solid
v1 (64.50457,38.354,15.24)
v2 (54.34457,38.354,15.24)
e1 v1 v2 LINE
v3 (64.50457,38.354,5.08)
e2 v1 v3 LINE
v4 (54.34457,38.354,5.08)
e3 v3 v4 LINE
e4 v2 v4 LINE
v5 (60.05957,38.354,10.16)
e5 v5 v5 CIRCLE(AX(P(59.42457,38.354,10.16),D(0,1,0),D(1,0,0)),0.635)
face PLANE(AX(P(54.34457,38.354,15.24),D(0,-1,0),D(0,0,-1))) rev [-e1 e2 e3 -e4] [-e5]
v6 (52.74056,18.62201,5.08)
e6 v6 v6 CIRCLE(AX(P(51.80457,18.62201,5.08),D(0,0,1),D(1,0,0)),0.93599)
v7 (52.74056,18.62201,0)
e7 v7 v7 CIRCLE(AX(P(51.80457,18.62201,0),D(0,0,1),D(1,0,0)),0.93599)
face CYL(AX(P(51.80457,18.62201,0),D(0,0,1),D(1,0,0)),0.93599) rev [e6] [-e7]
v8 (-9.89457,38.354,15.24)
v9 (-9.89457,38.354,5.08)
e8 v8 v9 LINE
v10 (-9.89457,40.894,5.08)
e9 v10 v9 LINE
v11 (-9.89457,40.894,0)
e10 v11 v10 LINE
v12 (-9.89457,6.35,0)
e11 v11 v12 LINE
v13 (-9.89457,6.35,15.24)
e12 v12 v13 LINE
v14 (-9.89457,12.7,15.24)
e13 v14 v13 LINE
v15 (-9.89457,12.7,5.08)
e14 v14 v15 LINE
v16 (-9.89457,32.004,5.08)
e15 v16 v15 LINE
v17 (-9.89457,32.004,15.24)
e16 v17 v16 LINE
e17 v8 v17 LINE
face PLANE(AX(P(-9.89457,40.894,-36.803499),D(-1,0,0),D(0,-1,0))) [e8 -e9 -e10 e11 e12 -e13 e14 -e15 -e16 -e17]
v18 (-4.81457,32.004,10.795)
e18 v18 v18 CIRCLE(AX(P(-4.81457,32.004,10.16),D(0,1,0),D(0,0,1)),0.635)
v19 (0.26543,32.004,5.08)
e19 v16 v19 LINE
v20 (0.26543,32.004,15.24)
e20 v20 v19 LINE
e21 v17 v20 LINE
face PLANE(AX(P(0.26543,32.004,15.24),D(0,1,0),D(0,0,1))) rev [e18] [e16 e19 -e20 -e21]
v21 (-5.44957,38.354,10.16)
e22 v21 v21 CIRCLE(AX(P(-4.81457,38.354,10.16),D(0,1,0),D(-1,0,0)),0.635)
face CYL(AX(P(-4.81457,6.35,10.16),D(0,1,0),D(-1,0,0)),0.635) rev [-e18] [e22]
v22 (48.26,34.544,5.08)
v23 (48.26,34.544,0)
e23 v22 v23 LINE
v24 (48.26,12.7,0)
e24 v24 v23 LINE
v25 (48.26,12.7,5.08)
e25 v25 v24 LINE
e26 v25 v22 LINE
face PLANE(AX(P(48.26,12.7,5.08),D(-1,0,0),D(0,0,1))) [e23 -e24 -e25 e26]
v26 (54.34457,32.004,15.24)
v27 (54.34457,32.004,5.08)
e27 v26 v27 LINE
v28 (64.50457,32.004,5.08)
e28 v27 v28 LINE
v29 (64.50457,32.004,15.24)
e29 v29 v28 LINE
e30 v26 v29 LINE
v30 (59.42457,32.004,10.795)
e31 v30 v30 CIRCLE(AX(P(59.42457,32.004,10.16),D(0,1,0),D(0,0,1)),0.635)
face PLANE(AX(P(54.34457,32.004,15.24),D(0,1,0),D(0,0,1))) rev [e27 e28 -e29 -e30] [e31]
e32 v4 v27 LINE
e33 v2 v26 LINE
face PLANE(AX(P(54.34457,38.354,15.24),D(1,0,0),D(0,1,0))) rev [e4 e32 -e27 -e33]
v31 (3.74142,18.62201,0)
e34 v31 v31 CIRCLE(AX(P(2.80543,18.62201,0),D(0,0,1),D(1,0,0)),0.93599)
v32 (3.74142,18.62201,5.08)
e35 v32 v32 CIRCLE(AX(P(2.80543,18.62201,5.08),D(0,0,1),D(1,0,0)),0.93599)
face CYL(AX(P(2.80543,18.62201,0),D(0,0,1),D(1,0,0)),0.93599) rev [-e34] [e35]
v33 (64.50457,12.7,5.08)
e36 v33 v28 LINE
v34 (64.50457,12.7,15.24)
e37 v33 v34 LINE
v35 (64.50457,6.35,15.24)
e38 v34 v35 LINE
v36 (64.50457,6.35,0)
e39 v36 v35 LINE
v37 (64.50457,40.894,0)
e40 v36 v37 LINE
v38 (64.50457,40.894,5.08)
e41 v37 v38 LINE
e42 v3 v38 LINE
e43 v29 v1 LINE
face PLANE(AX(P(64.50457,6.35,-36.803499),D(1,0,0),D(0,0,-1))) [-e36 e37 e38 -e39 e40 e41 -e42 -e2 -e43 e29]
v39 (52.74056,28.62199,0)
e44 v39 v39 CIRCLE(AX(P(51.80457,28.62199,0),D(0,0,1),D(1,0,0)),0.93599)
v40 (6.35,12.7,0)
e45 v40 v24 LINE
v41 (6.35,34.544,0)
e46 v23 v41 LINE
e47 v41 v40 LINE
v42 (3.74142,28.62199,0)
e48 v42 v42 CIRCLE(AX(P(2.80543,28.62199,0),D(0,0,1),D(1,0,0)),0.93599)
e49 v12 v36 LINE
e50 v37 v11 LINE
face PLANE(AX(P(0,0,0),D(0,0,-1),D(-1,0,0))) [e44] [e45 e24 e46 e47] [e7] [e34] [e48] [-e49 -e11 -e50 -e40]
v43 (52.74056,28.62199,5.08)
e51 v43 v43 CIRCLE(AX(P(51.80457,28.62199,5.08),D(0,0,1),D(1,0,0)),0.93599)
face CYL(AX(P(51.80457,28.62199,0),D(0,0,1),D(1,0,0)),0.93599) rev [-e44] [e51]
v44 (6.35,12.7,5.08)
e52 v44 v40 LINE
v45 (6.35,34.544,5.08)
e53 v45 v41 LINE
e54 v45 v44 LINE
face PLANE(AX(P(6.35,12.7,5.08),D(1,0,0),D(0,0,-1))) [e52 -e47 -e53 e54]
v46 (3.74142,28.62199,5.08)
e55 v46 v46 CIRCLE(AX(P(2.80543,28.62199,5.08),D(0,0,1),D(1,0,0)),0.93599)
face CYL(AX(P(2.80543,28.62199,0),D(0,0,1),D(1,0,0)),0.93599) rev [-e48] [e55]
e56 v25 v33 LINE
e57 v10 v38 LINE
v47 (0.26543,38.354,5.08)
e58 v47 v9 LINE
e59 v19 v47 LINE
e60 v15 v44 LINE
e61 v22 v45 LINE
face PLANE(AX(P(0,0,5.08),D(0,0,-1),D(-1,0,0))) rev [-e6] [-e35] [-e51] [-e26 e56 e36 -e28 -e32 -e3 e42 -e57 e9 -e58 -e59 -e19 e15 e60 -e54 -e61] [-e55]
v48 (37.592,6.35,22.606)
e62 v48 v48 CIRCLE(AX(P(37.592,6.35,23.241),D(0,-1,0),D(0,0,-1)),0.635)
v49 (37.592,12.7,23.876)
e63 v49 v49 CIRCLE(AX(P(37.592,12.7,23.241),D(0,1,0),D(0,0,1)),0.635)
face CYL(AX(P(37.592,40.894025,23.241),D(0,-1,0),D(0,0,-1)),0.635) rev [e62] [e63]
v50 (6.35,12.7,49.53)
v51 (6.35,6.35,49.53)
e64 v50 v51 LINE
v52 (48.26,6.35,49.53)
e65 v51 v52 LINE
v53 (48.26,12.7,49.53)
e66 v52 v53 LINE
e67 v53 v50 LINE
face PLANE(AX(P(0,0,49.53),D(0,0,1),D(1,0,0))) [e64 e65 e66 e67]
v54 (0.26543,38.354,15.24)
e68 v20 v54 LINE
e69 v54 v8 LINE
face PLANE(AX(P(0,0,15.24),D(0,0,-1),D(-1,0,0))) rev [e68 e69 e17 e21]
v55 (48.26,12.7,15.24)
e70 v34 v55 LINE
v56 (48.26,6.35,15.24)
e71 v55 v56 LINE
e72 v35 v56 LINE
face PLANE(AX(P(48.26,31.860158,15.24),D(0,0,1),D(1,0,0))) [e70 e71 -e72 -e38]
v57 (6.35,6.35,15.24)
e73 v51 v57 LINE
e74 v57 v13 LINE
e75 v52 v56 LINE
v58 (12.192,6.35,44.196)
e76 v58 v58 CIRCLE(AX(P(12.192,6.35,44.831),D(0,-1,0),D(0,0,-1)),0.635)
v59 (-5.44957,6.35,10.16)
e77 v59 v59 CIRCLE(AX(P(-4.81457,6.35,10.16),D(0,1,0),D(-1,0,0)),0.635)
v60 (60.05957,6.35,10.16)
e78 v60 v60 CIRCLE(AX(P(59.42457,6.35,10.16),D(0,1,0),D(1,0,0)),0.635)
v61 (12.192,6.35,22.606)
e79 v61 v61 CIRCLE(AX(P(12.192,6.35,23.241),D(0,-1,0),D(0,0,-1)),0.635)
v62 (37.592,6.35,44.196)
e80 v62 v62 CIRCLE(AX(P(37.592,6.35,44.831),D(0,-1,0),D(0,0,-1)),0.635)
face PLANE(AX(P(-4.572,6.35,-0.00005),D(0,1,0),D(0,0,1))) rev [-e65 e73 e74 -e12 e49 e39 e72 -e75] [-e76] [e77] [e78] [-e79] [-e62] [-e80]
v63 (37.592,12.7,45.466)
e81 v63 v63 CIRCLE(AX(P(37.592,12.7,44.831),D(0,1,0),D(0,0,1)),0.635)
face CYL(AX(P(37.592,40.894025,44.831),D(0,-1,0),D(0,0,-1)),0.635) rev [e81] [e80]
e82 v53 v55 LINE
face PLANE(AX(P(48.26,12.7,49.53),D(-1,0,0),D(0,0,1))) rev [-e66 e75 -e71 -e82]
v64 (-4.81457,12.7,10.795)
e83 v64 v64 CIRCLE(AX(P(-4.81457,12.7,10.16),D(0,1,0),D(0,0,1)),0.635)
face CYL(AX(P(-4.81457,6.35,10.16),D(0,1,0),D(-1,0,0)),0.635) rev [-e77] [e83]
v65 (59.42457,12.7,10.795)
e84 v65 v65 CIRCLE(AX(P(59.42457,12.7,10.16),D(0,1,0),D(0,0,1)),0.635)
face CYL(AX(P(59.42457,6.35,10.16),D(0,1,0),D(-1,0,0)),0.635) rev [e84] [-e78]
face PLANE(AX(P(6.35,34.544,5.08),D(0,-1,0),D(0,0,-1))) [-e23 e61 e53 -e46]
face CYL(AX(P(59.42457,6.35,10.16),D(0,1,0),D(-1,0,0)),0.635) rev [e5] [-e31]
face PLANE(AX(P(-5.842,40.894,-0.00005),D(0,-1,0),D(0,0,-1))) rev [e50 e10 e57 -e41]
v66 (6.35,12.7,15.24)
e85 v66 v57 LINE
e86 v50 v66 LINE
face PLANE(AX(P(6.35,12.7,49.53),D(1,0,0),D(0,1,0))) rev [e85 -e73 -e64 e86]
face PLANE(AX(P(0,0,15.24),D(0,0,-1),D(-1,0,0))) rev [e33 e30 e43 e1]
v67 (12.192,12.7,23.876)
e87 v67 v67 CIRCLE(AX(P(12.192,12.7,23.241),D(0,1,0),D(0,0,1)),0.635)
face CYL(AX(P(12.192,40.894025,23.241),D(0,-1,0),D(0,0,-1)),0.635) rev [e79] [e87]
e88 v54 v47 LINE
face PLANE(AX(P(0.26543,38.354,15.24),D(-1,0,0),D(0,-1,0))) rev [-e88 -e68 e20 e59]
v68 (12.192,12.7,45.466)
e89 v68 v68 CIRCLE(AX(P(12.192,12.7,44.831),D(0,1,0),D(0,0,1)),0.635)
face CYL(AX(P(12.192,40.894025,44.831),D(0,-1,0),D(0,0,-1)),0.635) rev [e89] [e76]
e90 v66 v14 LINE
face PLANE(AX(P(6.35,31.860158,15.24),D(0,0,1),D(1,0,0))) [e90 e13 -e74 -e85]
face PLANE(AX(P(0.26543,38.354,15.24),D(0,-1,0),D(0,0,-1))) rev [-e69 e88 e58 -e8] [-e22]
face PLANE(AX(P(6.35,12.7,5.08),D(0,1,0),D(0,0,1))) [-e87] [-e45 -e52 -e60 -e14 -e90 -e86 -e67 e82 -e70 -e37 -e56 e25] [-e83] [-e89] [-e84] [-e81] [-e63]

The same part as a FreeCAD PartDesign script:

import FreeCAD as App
import Part
import Sketcher
from FreeCAD import Vector
Q = App.Units.Quantity


def edges_at(feature, points):
    """Names of the edges that pass closest to the given points."""
    edges = feature.Shape.Edges
    near = lambda p: min(range(len(edges)), key=lambda i: edges[i].distToShape(Part.Vertex(*p))[0])
    return sorted({f"Edge{near(p) + 1}" for p in points})


def add_polygon(sketch, points):
    """Adds a closed chain of lines whose ends are joined by coincident constraints."""
    first, n = sketch.GeometryCount, len(points)
    for a, b in zip(points, points[1:] + points[:1]):
        sketch.addGeometry(Part.LineSegment(App.Vector(*a, 0), App.Vector(*b, 0)), False)
    for i in range(n):
        sketch.addConstraint(Sketcher.Constraint("Coincident", first + i, 2, first + (i + 1) % n, 1))

doc = App.newDocument("Part")
body = doc.addObject("PartDesign::Body", "Body")

sketch1 = body.newObject("Sketcher::SketchObject", "Sketch")
sketch1.AttachmentSupport = (doc.getObject("XY_Plane"), [""])
sketch1.MapMode = "FlatFace"
add_polygon(sketch1, [(0, 47.244), (0, 0), (54.61, 0), (54.61, 47.244)])
add_polygon(sketch1, [(48.26, 12.7), (6.35, 12.7), (6.35, 34.544), (48.26, 34.544)])
sketch1.addConstraint([
    Sketcher.Constraint("Vertical", 0),
    Sketcher.Constraint("Horizontal", 1),
    Sketcher.Constraint("Vertical", 2),
    Sketcher.Constraint("Horizontal", 3),
    Sketcher.Constraint("Horizontal", 4),
    Sketcher.Constraint("Vertical", 5),
    Sketcher.Constraint("Horizontal", 6),
    Sketcher.Constraint("Vertical", 7),
    Sketcher.Constraint("Coincident", 0, 2, -1, 1),
    Sketcher.Constraint("DistanceX", 1, 1, 1, 2, Q("2.15 in")),
    Sketcher.Constraint("DistanceX", 4, 2, 4, 1, Q("1.65 in")),
    Sketcher.Constraint("DistanceY", 0, 2, 0, 1, Q("1.86 in")),
    Sketcher.Constraint("DistanceY", 5, 1, 5, 2, Q("0.86 in")),
    Sketcher.Constraint("DistanceY", -1, 1, 4, 2, Q("0.5 in")),
    Sketcher.Constraint("DistanceX", -1, 1, 6, 2, Q("1.9 in")),
])
pad1 = body.newObject("PartDesign::Pad", "Pad")
pad1.Profile = sketch1
pad1.Length = Q("0.2 in")

sketch2 = body.newObject("Sketcher::SketchObject", "Sketch001")
sketch2.AttachmentSupport = (doc.getObject("XY_Plane"), [""])
sketch2.MapMode = "FlatFace"
sketch2.AttachmentOffset = App.Placement(Vector(0, 0, 0.2 * 25.4), App.Rotation())
sketch2.addGeometry([
    Part.Circle(Vector(2.80543, 28.62199, 0), Vector(0, 0, 1), 0.93599),
    Part.Circle(Vector(2.80543, 18.62201, 0), Vector(0, 0, 1), 0.93599),
    Part.Circle(Vector(51.80457, 28.62199, 0), Vector(0, 0, 1), 0.93599),
    Part.Circle(Vector(51.80457, 18.62201, 0), Vector(0, 0, 1), 0.93599),
], False)
sketch2.addConstraint([
    Sketcher.Constraint("Equal", 0, 1),
    Sketcher.Constraint("Equal", 1, 2),
    Sketcher.Constraint("Equal", 2, 3),
    Sketcher.Constraint("Horizontal", 0, 3, 2, 3),
    Sketcher.Constraint("Horizontal", 1, 3, 3, 3),
    Sketcher.Constraint("Vertical", 0, 3, 1, 3),
    Sketcher.Constraint("Vertical", 2, 3, 3, 3),
    Sketcher.Constraint("Diameter", 0, Q("0.0737 in")),
    Sketcher.Constraint("DistanceY", 1, 3, 0, 3, Q("0.3937 in")),
    Sketcher.Constraint("DistanceX", 0, 3, 2, 3, Q("1.9291 in")),
    Sketcher.Constraint("DistanceX", -1, 1, 0, 3, Q("2.80543 mm")),
    Sketcher.Constraint("DistanceY", -1, 1, 0, 3, Q("28.62199 mm")),
])
pocket1 = body.newObject("PartDesign::Pocket", "Pocket")
pocket1.Profile = sketch2
pocket1.Type = "ThroughAll"

sketch3 = body.newObject("Sketcher::SketchObject", "Sketch002")
sketch3.AttachmentSupport = (doc.getObject("XY_Plane"), [""])
sketch3.MapMode = "FlatFace"
sketch3.AttachmentOffset = App.Placement(Vector(0, 0, 0.2 * 25.4), App.Rotation())
add_polygon(sketch3, [(54.61, 33.37179), (54.61, 13.87221), (69.02958, 13.87221), (69.02958, 33.37179)])
sketch3.addGeometry(Part.Circle(Vector(64.35979, 21.49221, 0), Vector(0, 0, 1), 0.635), False)
sketch3.addGeometry(Part.Circle(Vector(64.35979, 25.75179, 0), Vector(0, 0, 1), 0.635), False)
sketch3.addConstraint([
    Sketcher.Constraint("Vertical", 0),
    Sketcher.Constraint("Horizontal", 1),
    Sketcher.Constraint("Vertical", 2),
    Sketcher.Constraint("Horizontal", 3),
    Sketcher.Constraint("Equal", 4, 5),
    Sketcher.Constraint("Vertical", 4, 3, 5, 3),
    Sketcher.Constraint("Diameter", 4, Q("0.05 in")),
    Sketcher.Constraint("DistanceY", 0, 2, 4, 3, Q("0.3 in")),
    Sketcher.Constraint("DistanceY", 5, 3, 2, 2, Q("0.3 in")),
    Sketcher.Constraint("DistanceX", -1, 1, 0, 2, Q("2.15 in")),
    Sketcher.Constraint("DistanceX", 1, 1, 1, 2, Q("0.5677 in")),
    Sketcher.Constraint("DistanceY", 0, 2, 0, 1, Q("0.7677 in")),
    Sketcher.Constraint("DistanceX", -1, 1, 4, 3, Q("64.35979 mm")),
    Sketcher.Constraint("DistanceY", -1, 1, 4, 3, Q("21.49221 mm")),
])
pad2 = body.newObject("PartDesign::Pad", "Pad001")
pad2.Profile = sketch3
pad2.Length = Q("0.2 in")
pad2.Reversed = True

sketch4 = body.newObject("Sketcher::SketchObject", "Sketch003")
sketch4.AttachmentSupport = (doc.getObject("XY_Plane"), [""])
sketch4.MapMode = "FlatFace"
sketch4.AttachmentOffset = App.Placement(Vector(0, 0, 0.2 * 25.4), App.Rotation())
add_polygon(sketch4, [(0, 47.244), (-5.842, 47.244), (-5.842, 64.262), (-15.748, 64.262), (-15.748, -17.018), (-4.572, -17.018), (-4.572, 0), (0, 0)])
sketch4.addGeometry(Part.Circle(Vector(-4.572, 21.49221, 0), Vector(0, 0, 1), 0.635), False)
add_polygon(sketch4, [(-9.144, -14.478), (-12.446, -14.478), (-12.446, 61.722), (-9.144, 61.722)])
sketch4.addGeometry(Part.Circle(Vector(-4.572, 25.75179, 0), Vector(0, 0, 1), 0.635), False)
sketch4.addConstraint([
    Sketcher.Constraint("Horizontal", 0),
    Sketcher.Constraint("Vertical", 1),
    Sketcher.Constraint("Horizontal", 2),
    Sketcher.Constraint("Vertical", 3),
    Sketcher.Constraint("Horizontal", 4),
    Sketcher.Constraint("Vertical", 5),
    Sketcher.Constraint("Horizontal", 6),
    Sketcher.Constraint("Vertical", 7),
    Sketcher.Constraint("Horizontal", 9),
    Sketcher.Constraint("Vertical", 10),
    Sketcher.Constraint("Horizontal", 11),
    Sketcher.Constraint("Vertical", 12),
    Sketcher.Constraint("Coincident", 6, 2, -1, 1),
    Sketcher.Constraint("Equal", 8, 13),
    Sketcher.Constraint("Vertical", 8, 3, 13, 3),
    Sketcher.Constraint("Vertical", 13, 3, 4, 2),
    Sketcher.Constraint("Equal", 1, 5),
    Sketcher.Constraint("Diameter", 8, Q("0.05 in")),
    Sketcher.Constraint("DistanceY", 10, 1, 10, 2, Q("3 in")),
    Sketcher.Constraint("DistanceY", 3, 2, 3, 1, Q("3.2 in")),
    Sketcher.Constraint("DistanceX", 0, 2, 0, 1, Q("0.23 in")),
    Sketcher.Constraint("DistanceX", 2, 2, 2, 1, Q("0.39 in")),
    Sketcher.Constraint("DistanceX", 4, 1, 4, 2, Q("0.44 in")),
    Sketcher.Constraint("DistanceX", 9, 2, 9, 1, Q("0.13 in")),
    Sketcher.Constraint("DistanceY", 1, 1, 1, 2, Q("0.67 in")),
    Sketcher.Constraint("DistanceY", 3, 2, 9, 2, Q("0.1 in")),
    Sketcher.Constraint("DistanceX", 9, 2, -1, 1, Q("0.49 in")),
    Sketcher.Constraint("DistanceY", 8, 3, 13, 3, Q("0.1677 in")),
    Sketcher.Constraint("DistanceY", -1, 1, 8, 3, Q("21.49221 mm")),
])
pad3 = body.newObject("PartDesign::Pad", "Pad002")
pad3.Profile = sketch4
pad3.Length = Q("0.2 in")
pad3.Reversed = True

sketch5 = body.newObject("Sketcher::SketchObject", "Sketch004")
sketch5.AttachmentSupport = (doc.getObject("XY_Plane"), [""])
sketch5.MapMode = "FlatFace"
sketch5.AttachmentOffset = App.Placement(Vector(0, 0, 0.2 * 25.4), App.Rotation())
add_polygon(sketch5, [(-5.842, 47.244), (-5.842, 40.894), (54.61, 40.894), (54.61, 47.244)])
add_polygon(sketch5, [(-4.572, 6.35), (-4.572, 0), (54.61, 0), (54.61, 6.35)])
sketch5.addConstraint([
    Sketcher.Constraint("Vertical", 0),
    Sketcher.Constraint("Horizontal", 1),
    Sketcher.Constraint("Vertical", 2),
    Sketcher.Constraint("Horizontal", 3),
    Sketcher.Constraint("Vertical", 4),
    Sketcher.Constraint("Horizontal", 5),
    Sketcher.Constraint("Vertical", 6),
    Sketcher.Constraint("Horizontal", 7),
    Sketcher.Constraint("PointOnObject", 4, 2, -1),
    Sketcher.Constraint("Vertical", 2, 2, 5, 2),
    Sketcher.Constraint("Equal", 2, 4),
    Sketcher.Constraint("DistanceX", 1, 1, 1, 2, Q("2.38 in")),
    Sketcher.Constraint("DistanceX", 5, 1, 5, 2, Q("2.33 in")),
    Sketcher.Constraint("DistanceY", 0, 2, 0, 1, Q("0.25 in")),
    Sketcher.Constraint("DistanceX", 0, 2, -1, 1, Q("0.23 in")),
    Sketcher.Constraint("DistanceY", -1, 1, 0, 2, Q("1.61 in")),
])
pocket2 = body.newObject("PartDesign::Pocket", "Pocket001")
pocket2.Profile = sketch5
pocket2.Type = "ThroughAll"

sketch6 = body.newObject("Sketcher::SketchObject", "Sketch005")
sketch6.AttachmentSupport = (doc.getObject("XY_Plane"), [""])
sketch6.MapMode = "FlatFace"
add_polygon(sketch6, [(-7.155421, 62.884712), (-7.155421, -16.108682), (-14.174976, -16.108682), (-14.174976, 62.884712)])
sketch6.addConstraint([
    Sketcher.Constraint("Vertical", 0),
    Sketcher.Constraint("Horizontal", 1),
    Sketcher.Constraint("Vertical", 2),
    Sketcher.Constraint("Horizontal", 3),
    Sketcher.Constraint("DistanceY", 0, 2, -1, 1, Q("0.6342001 in")),
    Sketcher.Constraint("DistanceX", 1, 2, 1, 1, Q("7.019555 mm")),
    Sketcher.Constraint("DistanceY", 0, 2, 0, 1, Q("78.993395 mm")),
    Sketcher.Constraint("DistanceX", 0, 2, -1, 1, Q("7.155421 mm")),
])
pad4 = body.newObject("PartDesign::Pad", "Pad003")
pad4.Profile = sketch6
pad4.Length = Q("0.19 in")
doc.recompute()

fillet = body.newObject("PartDesign::Fillet", "Fillet")
fillet.Base = (pad4, edges_at(pad4, [
    (69.03, 13.872, 2.54),
    (54.61, 13.872, 2.54),
    (54.61, 6.35, 2.54),
    (-4.572, 6.35, 2.54),
    (-4.572, -17.018, 2.54),
    (-15.748, -17.018, 2.54),
    (-15.748, 64.262, 2.54),
    (-5.842, 64.262, 2.54),
    (-5.842, 40.894, 2.54),
    (54.61, 40.894, 2.54),
    (54.61, 33.372, 2.54),
    (69.03, 33.372, 2.54),
]))
fillet.Radius = Q("0.1 in")

sketch7 = body.newObject("Sketcher::SketchObject", "Sketch006")
sketch7.AttachmentSupport = (doc.getObject("XY_Plane"), [""])
sketch7.MapMode = "FlatFace"
sketch7.AttachmentOffset = App.Placement(Vector(0, 0, 0.2 * 25.4), App.Rotation())
add_polygon(sketch7, [(-0.815943, 40.894), (2.80543, 40.894), (2.80543, 65.826533), (-23.515321, 65.826533), (-23.515321, -19.941777), (2.80543, -19.941777), (2.80543, 6.35), (-0.815943, 6.35)])
add_polygon(sketch7, [(51.80457, 65.826533), (51.80457, 40.89687), (54.61, 38.354), (54.61, 8.89), (52.07, 6.35), (51.80457, -19.941777), (74.486186, -19.941777), (74.486186, 65.826533)])
sketch7.addConstraint([
    Sketcher.Constraint("Horizontal", 0),
    Sketcher.Constraint("Vertical", 1),
    Sketcher.Constraint("Horizontal", 2),
    Sketcher.Constraint("Vertical", 3),
    Sketcher.Constraint("Horizontal", 4),
    Sketcher.Constraint("Vertical", 5),
    Sketcher.Constraint("Horizontal", 6),
    Sketcher.Constraint("Vertical", 7),
    Sketcher.Constraint("Vertical", 8),
    Sketcher.Constraint("Vertical", 10),
    Sketcher.Constraint("Horizontal", 13),
    Sketcher.Constraint("Vertical", 14),
    Sketcher.Constraint("Horizontal", 15),
    Sketcher.Constraint("Horizontal", 6, 2, 11, 2),
    Sketcher.Constraint("Horizontal", 4, 2, 12, 2),
    Sketcher.Constraint("Horizontal", 2, 2, 14, 2),
    Sketcher.Constraint("Vertical", 1, 2, 4, 2),
    Sketcher.Constraint("Vertical", 8, 2, 12, 2),
    Sketcher.Constraint("Angle", 11, Q("-135 deg")),
    Sketcher.Constraint("DistanceY", 7, 1, 7, 2, Q("1.36 in")),
    Sketcher.Constraint("DistanceY", 10, 2, 10, 1, Q("1.16 in")),
    Sketcher.Constraint("DistanceY", 9, 2, 0, 2, Q("0.1 in")),
    Sketcher.Constraint("DistanceY", -1, 1, 0, 2, Q("1.61 in")),
    Sketcher.Constraint("DistanceX", -1, 1, 9, 2, Q("2.15 in")),
    Sketcher.Constraint("DistanceX", 2, 2, -1, 1, Q("0.9258 in")),
    Sketcher.Constraint("DistanceX", 0, 2, 8, 2, Q("1.9291 in")),
    Sketcher.Constraint("DistanceX", 2, 2, 2, 1, Q("26.320751 mm")),
    Sketcher.Constraint("DistanceY", 3, 2, 3, 1, Q("85.768309 mm")),
    Sketcher.Constraint("DistanceX", 0, 1, 0, 2, Q("3.621373 mm")),
    Sketcher.Constraint("DistanceX", 13, 1, 13, 2, Q("22.681616 mm")),
    Sketcher.Constraint("DistanceY", 1, 1, 1, 2, Q("24.932533 mm")),
    Sketcher.Constraint("DistanceY", 8, 2, 8, 1, Q("24.929662 mm")),
])
pocket3 = body.newObject("PartDesign::Pocket", "Pocket002")
pocket3.Profile = sketch7
pocket3.Type = "ThroughAll"

sketch8 = body.newObject("Sketcher::SketchObject", "Sketch007")
sketch8.AttachmentSupport = (doc.getObject("XY_Plane"), [""])
sketch8.MapMode = "FlatFace"
sketch8.AttachmentOffset = App.Placement(Vector(0, 0, 0.2 * 25.4), App.Rotation())
add_polygon(sketch8, [(-9.89457, 40.894), (-9.89457, 6.35), (-0.815943, 6.35), (-0.815943, 40.894)])
add_polygon(sketch8, [(51.807736, 40.894), (54.61, 38.354), (54.61, 8.89), (52.07, 6.35), (64.50457, 6.35), (64.50457, 40.894)])
sketch8.addConstraint([
    Sketcher.Constraint("Vertical", 0),
    Sketcher.Constraint("Horizontal", 1),
    Sketcher.Constraint("Vertical", 2),
    Sketcher.Constraint("Horizontal", 3),
    Sketcher.Constraint("Vertical", 5),
    Sketcher.Constraint("Horizontal", 7),
    Sketcher.Constraint("Vertical", 8),
    Sketcher.Constraint("Horizontal", 9),
    Sketcher.Constraint("Horizontal", 1, 2, 6, 2),
    Sketcher.Constraint("Horizontal", 3, 2, 8, 2),
    Sketcher.Constraint("Angle", 6, Q("-135 deg")),
    Sketcher.Constraint("DistanceY", 0, 2, 0, 1, Q("1.36 in")),
    Sketcher.Constraint("DistanceY", 5, 2, 5, 1, Q("1.16 in")),
    Sketcher.Constraint("DistanceY", 4, 2, 2, 2, Q("0.1 in")),
    Sketcher.Constraint("DistanceY", -1, 1, 0, 2, Q("0.25 in")),
    Sketcher.Constraint("DistanceX", -1, 1, 4, 2, Q("2.15 in")),
    Sketcher.Constraint("Distance", 4, Q("3.7821 mm")),
    Sketcher.Constraint("DistanceX", 7, 1, 7, 2, Q("12.43457 mm")),
    Sketcher.Constraint("DistanceX", 1, 1, 1, 2, Q("9.078627 mm")),
    Sketcher.Constraint("DistanceX", 0, 2, -1, 1, Q("9.89457 mm")),
])
pad5 = body.newObject("PartDesign::Pad", "Pad004")
pad5.Profile = sketch8
pad5.Length = Q("0.2 in")
pad5.Reversed = True

sketch9 = body.newObject("Sketcher::SketchObject", "Sketch008")
sketch9.AttachmentSupport = (doc.getObject("XY_Plane"), [""])
sketch9.MapMode = "FlatFace"
sketch9.AttachmentOffset = App.Placement(Vector(0, 0, 0.2 * 25.4), App.Rotation())
add_polygon(sketch9, [(-9.89457, 38.354), (-9.89457, 32.004), (0.26543, 32.004), (0.26543, 38.354)])
add_polygon(sketch9, [(54.34457, 38.354), (54.34457, 32.004), (64.50457, 32.004), (64.50457, 38.354)])
sketch9.addConstraint([
    Sketcher.Constraint("Vertical", 0),
    Sketcher.Constraint("Horizontal", 1),
    Sketcher.Constraint("Vertical", 2),
    Sketcher.Constraint("Horizontal", 3),
    Sketcher.Constraint("Vertical", 4),
    Sketcher.Constraint("Horizontal", 5),
    Sketcher.Constraint("Vertical", 6),
    Sketcher.Constraint("Horizontal", 7),
    Sketcher.Constraint("Horizontal", 1, 2, 4, 2),
    Sketcher.Constraint("Horizontal", 3, 2, 6, 2),
    Sketcher.Constraint("Equal", 3, 5),
    Sketcher.Constraint("DistanceX", 1, 1, 1, 2, Q("0.4 in")),
    Sketcher.Constraint("DistanceY", 0, 2, 0, 1, Q("0.25 in")),
    Sketcher.Constraint("DistanceY", -1, 1, 0, 2, Q("1.26 in")),
    Sketcher.Constraint("DistanceX", 1, 2, 4, 2, Q("2.1291 in")),
    Sketcher.Constraint("DistanceX", 0, 2, -1, 1, Q("9.89457 mm")),
])
pad6 = body.newObject("PartDesign::Pad", "Pad005")
pad6.Profile = sketch9
pad6.Length = Q("0.4 in")

sketch10 = body.newObject("Sketcher::SketchObject", "Sketch009")
sketch10.AttachmentSupport = (doc.getObject("XY_Plane"), [""])
sketch10.MapMode = "FlatFace"
sketch10.AttachmentOffset = App.Placement(Vector(0, 0, 0.2 * 25.4), App.Rotation())
add_polygon(sketch10, [(6.35, 12.7), (6.35, 6.35), (48.26, 6.35), (48.26, 12.7)])
sketch10.addConstraint([
    Sketcher.Constraint("Vertical", 0),
    Sketcher.Constraint("Horizontal", 1),
    Sketcher.Constraint("Vertical", 2),
    Sketcher.Constraint("Horizontal", 3),
    Sketcher.Constraint("DistanceX", 1, 1, 1, 2, Q("1.65 in")),
    Sketcher.Constraint("DistanceY", 0, 2, 0, 1, Q("0.25 in")),
    Sketcher.Constraint("DistanceX", -1, 1, 1, 2, Q("1.9 in")),
    Sketcher.Constraint("DistanceY", -1, 1, 2, 2, Q("0.5 in")),
])
pad7 = body.newObject("PartDesign::Pad", "Pad006")
pad7.Profile = sketch10
pad7.Length = Q("1.75 in")

sketch11 = body.newObject("Sketcher::SketchObject", "Sketch010")
sketch11.AttachmentSupport = (doc.getObject("XZ_Plane"), [""])
sketch11.MapMode = "FlatFace"
sketch11.AttachmentOffset = App.Placement(Vector(0, 0, -0.25 * 25.4), App.Rotation())
add_polygon(sketch11, [(6.35, 5.08), (6.35, 15.24), (-9.89457, 15.24), (-9.89457, 5.08)])
add_polygon(sketch11, [(64.50457, 5.08), (64.50457, 15.24), (48.26, 15.24), (48.26, 5.08)])
sketch11.addConstraint([
    Sketcher.Constraint("Vertical", 0),
    Sketcher.Constraint("Horizontal", 1),
    Sketcher.Constraint("Vertical", 2),
    Sketcher.Constraint("Horizontal", 3),
    Sketcher.Constraint("Vertical", 4),
    Sketcher.Constraint("Horizontal", 5),
    Sketcher.Constraint("Vertical", 6),
    Sketcher.Constraint("Horizontal", 7),
    Sketcher.Constraint("Horizontal", 1, 2, 4, 2),
    Sketcher.Constraint("Horizontal", 3, 2, 6, 2),
    Sketcher.Constraint("Equal", 3, 5),
    Sketcher.Constraint("DistanceY", 0, 1, 0, 2, Q("0.4 in")),
    Sketcher.Constraint("DistanceY", -1, 1, 0, 2, Q("0.6 in")),
    Sketcher.Constraint("DistanceX", -1, 1, 5, 2, Q("1.9 in")),
    Sketcher.Constraint("DistanceX", -1, 1, 0, 2, Q("0.25 in")),
    Sketcher.Constraint("DistanceX", 1, 2, 4, 2, Q("2.9291 in")),
])
pad8 = body.newObject("PartDesign::Pad", "Pad007")
pad8.Profile = sketch11
pad8.Length = Q("0.25 in")
pad8.Reversed = True

sketch12 = body.newObject("Sketcher::SketchObject", "Sketch011")
sketch12.AttachmentSupport = (doc.getObject("XZ_Plane"), [""])
sketch12.MapMode = "FlatFace"
sketch12.AttachmentOffset = App.Placement(Vector(0, 0, -1.51 * 25.4), App.Rotation())
sketch12.addGeometry([
    Part.Circle(Vector(-4.81457, 10.16, 0), Vector(0, 0, 1), 0.635),
    Part.Circle(Vector(59.42457, 10.16, 0), Vector(0, 0, 1), 0.635),
], False)
sketch12.addConstraint([
    Sketcher.Constraint("Equal", 0, 1),
    Sketcher.Constraint("Horizontal", 0, 3, 1, 3),
    Sketcher.Constraint("Diameter", 0, Q("0.05 in")),
    Sketcher.Constraint("DistanceY", -1, 1, 0, 3, Q("0.4 in")),
    Sketcher.Constraint("DistanceX", 0, 3, 1, 3, Q("2.5291 in")),
    Sketcher.Constraint("DistanceX", 0, 3, -1, 1, Q("4.81457 mm")),
])
pocket4 = body.newObject("PartDesign::Pocket", "Pocket003")
pocket4.Profile = sketch12
pocket4.Type = "ThroughAll"
pocket4.Reversed = True

sketch13 = body.newObject("Sketcher::SketchObject", "Sketch012")
sketch13.AttachmentSupport = (doc.getObject("XZ_Plane"), [""])
sketch13.MapMode = "FlatFace"
sketch13.AttachmentOffset = App.Placement(Vector(0, 0, -0.25 * 25.4), App.Rotation())
sketch13.addGeometry([
    Part.Circle(Vector(37.592, 23.241, 0), Vector(0, 0, 1), 0.635),
    Part.Circle(Vector(37.592, 44.831, 0), Vector(0, 0, 1), 0.635),
    Part.Circle(Vector(12.192, 44.831, 0), Vector(0, 0, 1), 0.635),
    Part.Circle(Vector(12.192, 23.241, 0), Vector(0, 0, 1), 0.635),
], False)
sketch13.addConstraint([
    Sketcher.Constraint("Equal", 0, 1),
    Sketcher.Constraint("Equal", 1, 2),
    Sketcher.Constraint("Equal", 2, 3),
    Sketcher.Constraint("Horizontal", 1, 3, 2, 3),
    Sketcher.Constraint("Horizontal", 0, 3, 3, 3),
    Sketcher.Constraint("Vertical", 0, 3, 1, 3),
    Sketcher.Constraint("Vertical", 2, 3, 3, 3),
    Sketcher.Constraint("Diameter", 0, Q("0.05 in")),
    Sketcher.Constraint("DistanceX", 2, 3, 1, 3, Q("1 in")),
    Sketcher.Constraint("DistanceX", -1, 1, 0, 3, Q("1.48 in")),
    Sketcher.Constraint("DistanceY", 0, 3, 1, 3, Q("0.85 in")),
    Sketcher.Constraint("DistanceY", -1, 1, 0, 3, Q("0.915 in")),
])
pocket5 = body.newObject("PartDesign::Pocket", "Pocket004")
pocket5.Profile = sketch13
pocket5.Type = "ThroughAll"

doc.recompute()
